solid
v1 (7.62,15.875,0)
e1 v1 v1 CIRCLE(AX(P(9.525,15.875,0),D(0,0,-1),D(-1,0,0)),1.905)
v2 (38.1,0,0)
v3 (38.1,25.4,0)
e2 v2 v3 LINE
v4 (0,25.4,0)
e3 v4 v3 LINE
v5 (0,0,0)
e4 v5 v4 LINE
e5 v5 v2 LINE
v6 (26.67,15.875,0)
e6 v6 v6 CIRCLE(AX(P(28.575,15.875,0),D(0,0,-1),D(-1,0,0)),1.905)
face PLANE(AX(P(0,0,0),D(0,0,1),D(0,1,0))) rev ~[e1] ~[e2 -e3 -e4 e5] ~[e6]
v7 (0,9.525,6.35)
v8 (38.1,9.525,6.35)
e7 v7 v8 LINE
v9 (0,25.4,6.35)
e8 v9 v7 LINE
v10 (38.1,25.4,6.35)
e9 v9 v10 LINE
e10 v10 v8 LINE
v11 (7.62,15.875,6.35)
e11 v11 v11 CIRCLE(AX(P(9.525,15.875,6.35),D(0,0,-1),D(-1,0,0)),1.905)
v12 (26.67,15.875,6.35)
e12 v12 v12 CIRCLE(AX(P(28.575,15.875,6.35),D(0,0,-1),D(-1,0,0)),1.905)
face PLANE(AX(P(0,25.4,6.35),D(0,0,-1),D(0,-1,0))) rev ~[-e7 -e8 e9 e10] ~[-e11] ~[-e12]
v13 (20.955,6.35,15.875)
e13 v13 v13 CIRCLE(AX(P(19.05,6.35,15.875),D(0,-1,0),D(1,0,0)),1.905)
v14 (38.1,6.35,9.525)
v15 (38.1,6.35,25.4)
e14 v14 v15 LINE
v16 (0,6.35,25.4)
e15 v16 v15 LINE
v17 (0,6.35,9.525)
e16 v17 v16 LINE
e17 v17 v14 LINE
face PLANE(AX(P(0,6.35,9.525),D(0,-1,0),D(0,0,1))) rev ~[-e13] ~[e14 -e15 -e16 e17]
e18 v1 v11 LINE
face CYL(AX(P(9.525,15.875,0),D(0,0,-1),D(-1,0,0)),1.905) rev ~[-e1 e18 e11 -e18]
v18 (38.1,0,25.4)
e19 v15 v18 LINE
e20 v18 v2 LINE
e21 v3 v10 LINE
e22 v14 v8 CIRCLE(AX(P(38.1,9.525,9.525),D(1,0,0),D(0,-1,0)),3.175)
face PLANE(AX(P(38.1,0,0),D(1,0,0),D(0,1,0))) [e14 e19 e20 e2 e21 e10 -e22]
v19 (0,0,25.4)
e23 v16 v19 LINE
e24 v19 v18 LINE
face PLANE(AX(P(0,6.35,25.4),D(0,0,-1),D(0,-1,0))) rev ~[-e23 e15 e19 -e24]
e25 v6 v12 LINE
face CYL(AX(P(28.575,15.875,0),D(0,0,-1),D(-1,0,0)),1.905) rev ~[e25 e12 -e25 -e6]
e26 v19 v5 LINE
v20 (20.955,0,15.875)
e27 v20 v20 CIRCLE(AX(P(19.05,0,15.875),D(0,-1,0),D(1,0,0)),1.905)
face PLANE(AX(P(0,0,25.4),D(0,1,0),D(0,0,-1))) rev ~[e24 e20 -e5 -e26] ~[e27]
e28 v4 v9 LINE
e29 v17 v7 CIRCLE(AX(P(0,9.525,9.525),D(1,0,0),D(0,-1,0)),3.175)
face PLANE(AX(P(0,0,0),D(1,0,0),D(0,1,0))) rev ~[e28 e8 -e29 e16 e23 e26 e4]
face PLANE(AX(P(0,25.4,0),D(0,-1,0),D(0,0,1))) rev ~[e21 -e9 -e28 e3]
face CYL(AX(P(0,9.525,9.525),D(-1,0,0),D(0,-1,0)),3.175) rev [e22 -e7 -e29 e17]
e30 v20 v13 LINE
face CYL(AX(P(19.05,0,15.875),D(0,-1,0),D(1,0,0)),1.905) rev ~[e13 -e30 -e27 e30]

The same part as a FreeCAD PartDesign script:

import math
import FreeCAD as App
import Part
import Sketcher
from FreeCAD import Vector
Q = App.Units.Quantity

doc = App.newDocument("Part")
body = doc.addObject("PartDesign::Body", "Body")

sketch1 = body.newObject("Sketcher::SketchObject", "Sketch")
sketch1.AttachmentSupport = (doc.getObject("YZ_Plane"), [""])
sketch1.MapMode = "FlatFace"
sketch1.addGeometry([
    Part.LineSegment(Vector(6.3, 25.4, 0), Vector(0, 25.4, 0)),
    Part.LineSegment(Vector(0, 25.4, 0), Vector(0, 0, 0)),
    Part.LineSegment(Vector(0, 0, 0), Vector(25.4, 0, 0)),
    Part.LineSegment(Vector(25.4, 0, 0), Vector(25.4, 6.3, 0)),
    Part.LineSegment(Vector(25.4, 6.3, 0), Vector(9.5, 6.3, 0)),
    Part.ArcOfCircle(Part.Circle(Vector(9.5, 9.5, 0), Vector(0, 0, 1), 3.2), math.radians(180), math.radians(270)),
    Part.LineSegment(Vector(6.3, 9.5, 0), Vector(6.3, 25.4, 0)),
], False)
sketch1.addConstraint([
    Sketcher.Constraint("Coincident", 0, 2, 1, 1),
    Sketcher.Constraint("Coincident", 1, 2, 2, 1),
    Sketcher.Constraint("Coincident", 2, 2, 3, 1),
    Sketcher.Constraint("Coincident", 3, 2, 4, 1),
    Sketcher.Constraint("Tangent", 4, 2, 5, 2),
    Sketcher.Constraint("Tangent", 5, 1, 6, 1),
    Sketcher.Constraint("Coincident", 6, 2, 0, 1),
    Sketcher.Constraint("Horizontal", 0),
    Sketcher.Constraint("Vertical", 1),
    Sketcher.Constraint("Horizontal", 2),
    Sketcher.Constraint("Vertical", 3),
    Sketcher.Constraint("Horizontal", 4),
    Sketcher.Constraint("Vertical", 6),
    Sketcher.Constraint("Coincident", 1, 2, -1, 1),
    Sketcher.Constraint("Equal", 2, 1),
    Sketcher.Constraint("Equal", 0, 3),
    Sketcher.Constraint("DistanceX", 2, 1, 2, 2, Q("1 in")),
    Sketcher.Constraint("Radius", 5, Q("0.125 in")),
    Sketcher.Constraint("DistanceX", 0, 2, 0, 1, Q("0.25 in")),
])
pad1 = body.newObject("PartDesign::Pad", "Pad")
pad1.Profile = sketch1
pad1.Length = Q("1.5 in")

sketch2 = body.newObject("Sketcher::SketchObject", "Sketch001")
sketch2.AttachmentSupport = (doc.getObject("XY_Plane"), [""])
sketch2.MapMode = "FlatFace"
sketch2.addGeometry([
    Part.Circle(Vector(28.6, 15.9, 0), Vector(0, 0, 1), 1.9),
    Part.Circle(Vector(9.5, 15.9, 0), Vector(0, 0, 1), 1.9),
], False)
sketch2.addConstraint([
    Sketcher.Constraint("Equal", 0, 1),
    Sketcher.Constraint("Horizontal", 0, 3, 1, 3),
    Sketcher.Constraint("Diameter", 0, Q("0.15 in")),
    Sketcher.Constraint("DistanceX", 1, 3, 0, 3, Q("0.75 in")),
    Sketcher.Constraint("DistanceX", -1, 1, 0, 3, Q("1.125 in")),
    Sketcher.Constraint("DistanceY", -1, 1, 0, 3, Q("0.625 in")),
])
pocket1 = body.newObject("PartDesign::Pocket", "Pocket")
pocket1.Profile = sketch2
pocket1.Type = "ThroughAll"
pocket1.Reversed = True

sketch3 = body.newObject("Sketcher::SketchObject", "Sketch002")
sketch3.AttachmentSupport = (doc.getObject("XZ_Plane"), [""])
sketch3.MapMode = "FlatFace"
sketch3.addGeometry(Part.Circle(Vector(19.1, 15.9, 0), Vector(0, 0, 1), 1.9), False)
sketch3.addConstraint([
    Sketcher.Constraint("Diameter", 0, Q("0.15 in")),
    Sketcher.Constraint("DistanceX", -1, 1, 0, 3, Q("0.75 in")),
    Sketcher.Constraint("DistanceY", -1, 1, 0, 3, Q("0.625 in")),
])
pocket2 = body.newObject("PartDesign::Pocket", "Pocket001")
pocket2.Profile = sketch3
pocket2.Type = "ThroughAll"

doc.recompute()
